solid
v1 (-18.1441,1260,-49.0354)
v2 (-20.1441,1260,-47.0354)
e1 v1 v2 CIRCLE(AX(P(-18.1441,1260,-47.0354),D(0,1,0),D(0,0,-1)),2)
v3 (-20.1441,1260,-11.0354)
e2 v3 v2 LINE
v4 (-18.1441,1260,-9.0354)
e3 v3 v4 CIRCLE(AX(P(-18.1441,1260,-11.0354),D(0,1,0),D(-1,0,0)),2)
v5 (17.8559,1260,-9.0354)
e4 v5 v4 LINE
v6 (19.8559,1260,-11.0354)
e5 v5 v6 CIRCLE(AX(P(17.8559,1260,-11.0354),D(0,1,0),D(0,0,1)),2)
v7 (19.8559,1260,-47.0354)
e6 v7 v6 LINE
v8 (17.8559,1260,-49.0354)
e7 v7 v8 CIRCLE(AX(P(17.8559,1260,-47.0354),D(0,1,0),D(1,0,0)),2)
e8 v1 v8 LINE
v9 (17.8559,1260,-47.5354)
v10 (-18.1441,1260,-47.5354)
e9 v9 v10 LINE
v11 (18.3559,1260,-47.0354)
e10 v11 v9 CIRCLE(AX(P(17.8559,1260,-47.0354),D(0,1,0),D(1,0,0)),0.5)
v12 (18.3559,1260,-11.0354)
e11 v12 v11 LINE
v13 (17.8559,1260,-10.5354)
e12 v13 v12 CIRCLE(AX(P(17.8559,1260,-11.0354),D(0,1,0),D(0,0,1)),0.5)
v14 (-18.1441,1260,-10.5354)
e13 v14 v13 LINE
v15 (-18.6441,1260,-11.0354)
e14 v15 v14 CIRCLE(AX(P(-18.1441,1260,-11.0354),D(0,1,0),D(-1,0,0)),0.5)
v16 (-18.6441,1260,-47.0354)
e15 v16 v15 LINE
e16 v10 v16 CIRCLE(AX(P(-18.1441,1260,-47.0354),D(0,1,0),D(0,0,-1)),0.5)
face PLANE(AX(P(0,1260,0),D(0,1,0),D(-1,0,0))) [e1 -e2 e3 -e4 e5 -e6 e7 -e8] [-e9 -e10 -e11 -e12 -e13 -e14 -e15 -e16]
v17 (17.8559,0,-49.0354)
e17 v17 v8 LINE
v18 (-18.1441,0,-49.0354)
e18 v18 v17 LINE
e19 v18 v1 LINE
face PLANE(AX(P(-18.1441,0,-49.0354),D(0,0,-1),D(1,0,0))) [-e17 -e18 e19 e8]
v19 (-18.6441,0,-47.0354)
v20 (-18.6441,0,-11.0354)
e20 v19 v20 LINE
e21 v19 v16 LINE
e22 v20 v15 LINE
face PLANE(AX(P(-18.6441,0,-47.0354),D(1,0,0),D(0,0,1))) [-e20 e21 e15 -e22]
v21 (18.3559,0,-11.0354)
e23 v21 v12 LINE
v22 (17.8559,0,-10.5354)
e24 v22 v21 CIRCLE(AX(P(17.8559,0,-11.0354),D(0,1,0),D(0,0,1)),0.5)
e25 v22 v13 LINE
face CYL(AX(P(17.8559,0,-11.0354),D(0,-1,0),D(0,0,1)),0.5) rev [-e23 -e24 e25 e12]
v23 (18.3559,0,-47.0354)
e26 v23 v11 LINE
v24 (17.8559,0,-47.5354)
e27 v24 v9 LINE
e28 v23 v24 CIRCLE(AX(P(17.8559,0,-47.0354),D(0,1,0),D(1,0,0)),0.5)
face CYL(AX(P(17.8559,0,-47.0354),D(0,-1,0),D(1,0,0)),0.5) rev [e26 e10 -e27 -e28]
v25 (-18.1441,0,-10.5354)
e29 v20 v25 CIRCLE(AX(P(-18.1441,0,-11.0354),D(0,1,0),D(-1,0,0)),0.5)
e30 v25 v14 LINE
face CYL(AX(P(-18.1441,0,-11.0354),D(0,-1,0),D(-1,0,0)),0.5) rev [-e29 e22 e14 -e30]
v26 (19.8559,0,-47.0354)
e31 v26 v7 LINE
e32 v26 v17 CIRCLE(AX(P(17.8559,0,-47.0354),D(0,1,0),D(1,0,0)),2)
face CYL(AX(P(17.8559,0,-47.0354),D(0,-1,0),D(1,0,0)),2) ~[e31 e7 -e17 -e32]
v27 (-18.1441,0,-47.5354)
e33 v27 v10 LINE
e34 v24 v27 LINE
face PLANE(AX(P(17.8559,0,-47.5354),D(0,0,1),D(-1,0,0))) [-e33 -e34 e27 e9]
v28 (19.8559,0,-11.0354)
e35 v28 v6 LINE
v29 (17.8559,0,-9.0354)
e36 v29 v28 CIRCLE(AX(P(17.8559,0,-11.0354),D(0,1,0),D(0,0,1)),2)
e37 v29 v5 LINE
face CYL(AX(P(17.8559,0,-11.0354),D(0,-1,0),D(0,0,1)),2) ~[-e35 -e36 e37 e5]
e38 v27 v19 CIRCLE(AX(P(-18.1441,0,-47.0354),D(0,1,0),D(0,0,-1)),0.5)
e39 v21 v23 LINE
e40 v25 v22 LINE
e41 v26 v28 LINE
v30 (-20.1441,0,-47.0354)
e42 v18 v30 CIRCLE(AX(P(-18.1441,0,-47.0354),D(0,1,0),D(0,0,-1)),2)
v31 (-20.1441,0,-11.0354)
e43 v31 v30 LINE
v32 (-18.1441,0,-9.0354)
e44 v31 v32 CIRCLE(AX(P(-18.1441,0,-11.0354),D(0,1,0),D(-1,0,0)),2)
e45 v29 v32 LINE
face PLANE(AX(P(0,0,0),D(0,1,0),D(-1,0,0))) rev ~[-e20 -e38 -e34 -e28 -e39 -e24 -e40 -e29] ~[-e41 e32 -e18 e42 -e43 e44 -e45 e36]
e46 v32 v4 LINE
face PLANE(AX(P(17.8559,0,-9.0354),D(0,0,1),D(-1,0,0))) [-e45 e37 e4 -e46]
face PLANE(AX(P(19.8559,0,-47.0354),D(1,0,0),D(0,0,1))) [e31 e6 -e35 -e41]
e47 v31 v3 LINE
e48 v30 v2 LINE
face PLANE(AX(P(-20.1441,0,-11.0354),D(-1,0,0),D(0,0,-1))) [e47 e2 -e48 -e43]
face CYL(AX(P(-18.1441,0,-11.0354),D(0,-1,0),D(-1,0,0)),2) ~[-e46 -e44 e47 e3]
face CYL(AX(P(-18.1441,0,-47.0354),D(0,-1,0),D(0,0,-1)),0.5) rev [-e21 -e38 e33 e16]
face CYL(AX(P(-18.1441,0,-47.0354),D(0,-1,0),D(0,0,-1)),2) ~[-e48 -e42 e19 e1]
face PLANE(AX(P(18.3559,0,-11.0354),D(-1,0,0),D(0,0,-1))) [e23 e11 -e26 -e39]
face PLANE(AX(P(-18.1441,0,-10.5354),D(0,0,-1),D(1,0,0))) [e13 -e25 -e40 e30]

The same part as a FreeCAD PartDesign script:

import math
import FreeCAD as App
import Part
import Sketcher
from FreeCAD import Vector

doc = App.newDocument("Part")
body = doc.addObject("PartDesign::Body", "Body")

sketch1 = body.newObject("Sketcher::SketchObject", "Sketch")
sketch1.AttachmentSupport = (doc.getObject("XZ_Plane"), [""])
sketch1.MapMode = "FlatFace"
sketch1.addGeometry(Part.LineSegment(Vector(-20.1, -47, 0), Vector(-20.1, -11, 0)), False)
sketch1.addGeometry(Part.ArcOfCircle(Part.Circle(Vector(-18.1, -11, 0), Vector(0, 0, 1), 2), math.radians(90), math.radians(180)), False)
sketch1.addGeometry(Part.LineSegment(Vector(-18.1, -9, 0), Vector(17.9, -9, 0)), False)
sketch1.addGeometry(Part.ArcOfCircle(Part.Circle(Vector(17.9, -11, 0), Vector(0, 0, 1), 2), math.radians(0), math.radians(90)), False)
sketch1.addGeometry(Part.LineSegment(Vector(19.9, -11, 0), Vector(19.9, -47, 0)), False)
sketch1.addGeometry(Part.ArcOfCircle(Part.Circle(Vector(17.9, -47, 0), Vector(0, 0, 1), 2), math.radians(-90), math.radians(0)), False)
sketch1.addGeometry(Part.LineSegment(Vector(17.9, -49, 0), Vector(-18.1, -49, 0)), False)
sketch1.addGeometry(Part.ArcOfCircle(Part.Circle(Vector(-18.1, -47, 0), Vector(0, 0, 1), 2), math.radians(180), math.radians(270)), False)
sketch1.addGeometry(Part.LineSegment(Vector(-18.6, -11, 0), Vector(-18.6, -47, 0)), False)
sketch1.addGeometry(Part.ArcOfCircle(Part.Circle(Vector(-18.1, -47, 0), Vector(0, 0, 1), 0.5), math.radians(180), math.radians(270)), False)
sketch1.addGeometry(Part.LineSegment(Vector(-18.1, -47.5, 0), Vector(17.9, -47.5, 0)), False)
sketch1.addGeometry(Part.ArcOfCircle(Part.Circle(Vector(17.9, -47, 0), Vector(0, 0, 1), 0.5), math.radians(-90), math.radians(0)), False)
sketch1.addGeometry(Part.LineSegment(Vector(18.4, -47, 0), Vector(18.4, -11, 0)), False)
sketch1.addGeometry(Part.ArcOfCircle(Part.Circle(Vector(17.9, -11, 0), Vector(0, 0, 1), 0.5), math.radians(0), math.radians(90)), False)
sketch1.addGeometry(Part.LineSegment(Vector(17.9, -10.5, 0), Vector(-18.1, -10.5, 0)), False)
sketch1.addGeometry(Part.ArcOfCircle(Part.Circle(Vector(-18.1, -11, 0), Vector(0, 0, 1), 0.5), math.radians(90), math.radians(180)), False)
sketch1.addConstraint(Sketcher.Constraint("Tangent", 0, 2, 1, 2))
sketch1.addConstraint(Sketcher.Constraint("Tangent", 1, 1, 2, 1))
sketch1.addConstraint(Sketcher.Constraint("Tangent", 2, 2, 3, 2))
sketch1.addConstraint(Sketcher.Constraint("Tangent", 3, 1, 4, 1))
sketch1.addConstraint(Sketcher.Constraint("Tangent", 4, 2, 5, 2))
sketch1.addConstraint(Sketcher.Constraint("Tangent", 5, 1, 6, 1))
sketch1.addConstraint(Sketcher.Constraint("Tangent", 6, 2, 7, 2))
sketch1.addConstraint(Sketcher.Constraint("Tangent", 7, 1, 0, 1))
sketch1.addConstraint(Sketcher.Constraint("Tangent", 8, 2, 9, 1))
sketch1.addConstraint(Sketcher.Constraint("Tangent", 9, 2, 10, 1))
sketch1.addConstraint(Sketcher.Constraint("Tangent", 10, 2, 11, 1))
sketch1.addConstraint(Sketcher.Constraint("Tangent", 11, 2, 12, 1))
sketch1.addConstraint(Sketcher.Constraint("Tangent", 12, 2, 13, 1))
sketch1.addConstraint(Sketcher.Constraint("Tangent", 13, 2, 14, 1))
sketch1.addConstraint(Sketcher.Constraint("Tangent", 14, 2, 15, 1))
sketch1.addConstraint(Sketcher.Constraint("Tangent", 15, 2, 8, 1))
sketch1.addConstraint(Sketcher.Constraint("Vertical", 0))
sketch1.addConstraint(Sketcher.Constraint("Horizontal", 2))
sketch1.addConstraint(Sketcher.Constraint("Vertical", 4))
sketch1.addConstraint(Sketcher.Constraint("Horizontal", 6))
sketch1.addConstraint(Sketcher.Constraint("Vertical", 8))
sketch1.addConstraint(Sketcher.Constraint("Horizontal", 10))
sketch1.addConstraint(Sketcher.Constraint("Vertical", 12))
sketch1.addConstraint(Sketcher.Constraint("Horizontal", 14))
sketch1.addConstraint(Sketcher.Constraint("Coincident", 9, 3, 7, 3))
sketch1.addConstraint(Sketcher.Constraint("Coincident", 11, 3, 5, 3))
sketch1.addConstraint(Sketcher.Constraint("Coincident", 13, 3, 3, 3))
sketch1.addConstraint(Sketcher.Constraint("Equal", 1, 3))
sketch1.addConstraint(Sketcher.Constraint("Equal", 3, 5))
sketch1.addConstraint(Sketcher.Constraint("Equal", 5, 7))
sketch1.addConstraint(Sketcher.Constraint("Equal", 13, 15))
sketch1.addConstraint(Sketcher.Constraint("Equal", 14, 0))
sketch1.addConstraint(Sketcher.Constraint("Radius", 1, 2.0))
sketch1.addConstraint(Sketcher.Constraint("Radius", 9, 0.5))
sketch1.addConstraint(Sketcher.Constraint("DistanceX", 2, 1, 2, 2, 36.0))
sketch1.addConstraint(Sketcher.Constraint("DistanceX", 1, 3, -1, 1, 18.144))
sketch1.addConstraint(Sketcher.Constraint("DistanceY", 1, 3, -1, 1, 11.0354))
pad1 = body.newObject("PartDesign::Pad", "Pad")
pad1.Profile = sketch1
pad1.Length = 1260
pad1.Reversed = True

doc.recompute()
